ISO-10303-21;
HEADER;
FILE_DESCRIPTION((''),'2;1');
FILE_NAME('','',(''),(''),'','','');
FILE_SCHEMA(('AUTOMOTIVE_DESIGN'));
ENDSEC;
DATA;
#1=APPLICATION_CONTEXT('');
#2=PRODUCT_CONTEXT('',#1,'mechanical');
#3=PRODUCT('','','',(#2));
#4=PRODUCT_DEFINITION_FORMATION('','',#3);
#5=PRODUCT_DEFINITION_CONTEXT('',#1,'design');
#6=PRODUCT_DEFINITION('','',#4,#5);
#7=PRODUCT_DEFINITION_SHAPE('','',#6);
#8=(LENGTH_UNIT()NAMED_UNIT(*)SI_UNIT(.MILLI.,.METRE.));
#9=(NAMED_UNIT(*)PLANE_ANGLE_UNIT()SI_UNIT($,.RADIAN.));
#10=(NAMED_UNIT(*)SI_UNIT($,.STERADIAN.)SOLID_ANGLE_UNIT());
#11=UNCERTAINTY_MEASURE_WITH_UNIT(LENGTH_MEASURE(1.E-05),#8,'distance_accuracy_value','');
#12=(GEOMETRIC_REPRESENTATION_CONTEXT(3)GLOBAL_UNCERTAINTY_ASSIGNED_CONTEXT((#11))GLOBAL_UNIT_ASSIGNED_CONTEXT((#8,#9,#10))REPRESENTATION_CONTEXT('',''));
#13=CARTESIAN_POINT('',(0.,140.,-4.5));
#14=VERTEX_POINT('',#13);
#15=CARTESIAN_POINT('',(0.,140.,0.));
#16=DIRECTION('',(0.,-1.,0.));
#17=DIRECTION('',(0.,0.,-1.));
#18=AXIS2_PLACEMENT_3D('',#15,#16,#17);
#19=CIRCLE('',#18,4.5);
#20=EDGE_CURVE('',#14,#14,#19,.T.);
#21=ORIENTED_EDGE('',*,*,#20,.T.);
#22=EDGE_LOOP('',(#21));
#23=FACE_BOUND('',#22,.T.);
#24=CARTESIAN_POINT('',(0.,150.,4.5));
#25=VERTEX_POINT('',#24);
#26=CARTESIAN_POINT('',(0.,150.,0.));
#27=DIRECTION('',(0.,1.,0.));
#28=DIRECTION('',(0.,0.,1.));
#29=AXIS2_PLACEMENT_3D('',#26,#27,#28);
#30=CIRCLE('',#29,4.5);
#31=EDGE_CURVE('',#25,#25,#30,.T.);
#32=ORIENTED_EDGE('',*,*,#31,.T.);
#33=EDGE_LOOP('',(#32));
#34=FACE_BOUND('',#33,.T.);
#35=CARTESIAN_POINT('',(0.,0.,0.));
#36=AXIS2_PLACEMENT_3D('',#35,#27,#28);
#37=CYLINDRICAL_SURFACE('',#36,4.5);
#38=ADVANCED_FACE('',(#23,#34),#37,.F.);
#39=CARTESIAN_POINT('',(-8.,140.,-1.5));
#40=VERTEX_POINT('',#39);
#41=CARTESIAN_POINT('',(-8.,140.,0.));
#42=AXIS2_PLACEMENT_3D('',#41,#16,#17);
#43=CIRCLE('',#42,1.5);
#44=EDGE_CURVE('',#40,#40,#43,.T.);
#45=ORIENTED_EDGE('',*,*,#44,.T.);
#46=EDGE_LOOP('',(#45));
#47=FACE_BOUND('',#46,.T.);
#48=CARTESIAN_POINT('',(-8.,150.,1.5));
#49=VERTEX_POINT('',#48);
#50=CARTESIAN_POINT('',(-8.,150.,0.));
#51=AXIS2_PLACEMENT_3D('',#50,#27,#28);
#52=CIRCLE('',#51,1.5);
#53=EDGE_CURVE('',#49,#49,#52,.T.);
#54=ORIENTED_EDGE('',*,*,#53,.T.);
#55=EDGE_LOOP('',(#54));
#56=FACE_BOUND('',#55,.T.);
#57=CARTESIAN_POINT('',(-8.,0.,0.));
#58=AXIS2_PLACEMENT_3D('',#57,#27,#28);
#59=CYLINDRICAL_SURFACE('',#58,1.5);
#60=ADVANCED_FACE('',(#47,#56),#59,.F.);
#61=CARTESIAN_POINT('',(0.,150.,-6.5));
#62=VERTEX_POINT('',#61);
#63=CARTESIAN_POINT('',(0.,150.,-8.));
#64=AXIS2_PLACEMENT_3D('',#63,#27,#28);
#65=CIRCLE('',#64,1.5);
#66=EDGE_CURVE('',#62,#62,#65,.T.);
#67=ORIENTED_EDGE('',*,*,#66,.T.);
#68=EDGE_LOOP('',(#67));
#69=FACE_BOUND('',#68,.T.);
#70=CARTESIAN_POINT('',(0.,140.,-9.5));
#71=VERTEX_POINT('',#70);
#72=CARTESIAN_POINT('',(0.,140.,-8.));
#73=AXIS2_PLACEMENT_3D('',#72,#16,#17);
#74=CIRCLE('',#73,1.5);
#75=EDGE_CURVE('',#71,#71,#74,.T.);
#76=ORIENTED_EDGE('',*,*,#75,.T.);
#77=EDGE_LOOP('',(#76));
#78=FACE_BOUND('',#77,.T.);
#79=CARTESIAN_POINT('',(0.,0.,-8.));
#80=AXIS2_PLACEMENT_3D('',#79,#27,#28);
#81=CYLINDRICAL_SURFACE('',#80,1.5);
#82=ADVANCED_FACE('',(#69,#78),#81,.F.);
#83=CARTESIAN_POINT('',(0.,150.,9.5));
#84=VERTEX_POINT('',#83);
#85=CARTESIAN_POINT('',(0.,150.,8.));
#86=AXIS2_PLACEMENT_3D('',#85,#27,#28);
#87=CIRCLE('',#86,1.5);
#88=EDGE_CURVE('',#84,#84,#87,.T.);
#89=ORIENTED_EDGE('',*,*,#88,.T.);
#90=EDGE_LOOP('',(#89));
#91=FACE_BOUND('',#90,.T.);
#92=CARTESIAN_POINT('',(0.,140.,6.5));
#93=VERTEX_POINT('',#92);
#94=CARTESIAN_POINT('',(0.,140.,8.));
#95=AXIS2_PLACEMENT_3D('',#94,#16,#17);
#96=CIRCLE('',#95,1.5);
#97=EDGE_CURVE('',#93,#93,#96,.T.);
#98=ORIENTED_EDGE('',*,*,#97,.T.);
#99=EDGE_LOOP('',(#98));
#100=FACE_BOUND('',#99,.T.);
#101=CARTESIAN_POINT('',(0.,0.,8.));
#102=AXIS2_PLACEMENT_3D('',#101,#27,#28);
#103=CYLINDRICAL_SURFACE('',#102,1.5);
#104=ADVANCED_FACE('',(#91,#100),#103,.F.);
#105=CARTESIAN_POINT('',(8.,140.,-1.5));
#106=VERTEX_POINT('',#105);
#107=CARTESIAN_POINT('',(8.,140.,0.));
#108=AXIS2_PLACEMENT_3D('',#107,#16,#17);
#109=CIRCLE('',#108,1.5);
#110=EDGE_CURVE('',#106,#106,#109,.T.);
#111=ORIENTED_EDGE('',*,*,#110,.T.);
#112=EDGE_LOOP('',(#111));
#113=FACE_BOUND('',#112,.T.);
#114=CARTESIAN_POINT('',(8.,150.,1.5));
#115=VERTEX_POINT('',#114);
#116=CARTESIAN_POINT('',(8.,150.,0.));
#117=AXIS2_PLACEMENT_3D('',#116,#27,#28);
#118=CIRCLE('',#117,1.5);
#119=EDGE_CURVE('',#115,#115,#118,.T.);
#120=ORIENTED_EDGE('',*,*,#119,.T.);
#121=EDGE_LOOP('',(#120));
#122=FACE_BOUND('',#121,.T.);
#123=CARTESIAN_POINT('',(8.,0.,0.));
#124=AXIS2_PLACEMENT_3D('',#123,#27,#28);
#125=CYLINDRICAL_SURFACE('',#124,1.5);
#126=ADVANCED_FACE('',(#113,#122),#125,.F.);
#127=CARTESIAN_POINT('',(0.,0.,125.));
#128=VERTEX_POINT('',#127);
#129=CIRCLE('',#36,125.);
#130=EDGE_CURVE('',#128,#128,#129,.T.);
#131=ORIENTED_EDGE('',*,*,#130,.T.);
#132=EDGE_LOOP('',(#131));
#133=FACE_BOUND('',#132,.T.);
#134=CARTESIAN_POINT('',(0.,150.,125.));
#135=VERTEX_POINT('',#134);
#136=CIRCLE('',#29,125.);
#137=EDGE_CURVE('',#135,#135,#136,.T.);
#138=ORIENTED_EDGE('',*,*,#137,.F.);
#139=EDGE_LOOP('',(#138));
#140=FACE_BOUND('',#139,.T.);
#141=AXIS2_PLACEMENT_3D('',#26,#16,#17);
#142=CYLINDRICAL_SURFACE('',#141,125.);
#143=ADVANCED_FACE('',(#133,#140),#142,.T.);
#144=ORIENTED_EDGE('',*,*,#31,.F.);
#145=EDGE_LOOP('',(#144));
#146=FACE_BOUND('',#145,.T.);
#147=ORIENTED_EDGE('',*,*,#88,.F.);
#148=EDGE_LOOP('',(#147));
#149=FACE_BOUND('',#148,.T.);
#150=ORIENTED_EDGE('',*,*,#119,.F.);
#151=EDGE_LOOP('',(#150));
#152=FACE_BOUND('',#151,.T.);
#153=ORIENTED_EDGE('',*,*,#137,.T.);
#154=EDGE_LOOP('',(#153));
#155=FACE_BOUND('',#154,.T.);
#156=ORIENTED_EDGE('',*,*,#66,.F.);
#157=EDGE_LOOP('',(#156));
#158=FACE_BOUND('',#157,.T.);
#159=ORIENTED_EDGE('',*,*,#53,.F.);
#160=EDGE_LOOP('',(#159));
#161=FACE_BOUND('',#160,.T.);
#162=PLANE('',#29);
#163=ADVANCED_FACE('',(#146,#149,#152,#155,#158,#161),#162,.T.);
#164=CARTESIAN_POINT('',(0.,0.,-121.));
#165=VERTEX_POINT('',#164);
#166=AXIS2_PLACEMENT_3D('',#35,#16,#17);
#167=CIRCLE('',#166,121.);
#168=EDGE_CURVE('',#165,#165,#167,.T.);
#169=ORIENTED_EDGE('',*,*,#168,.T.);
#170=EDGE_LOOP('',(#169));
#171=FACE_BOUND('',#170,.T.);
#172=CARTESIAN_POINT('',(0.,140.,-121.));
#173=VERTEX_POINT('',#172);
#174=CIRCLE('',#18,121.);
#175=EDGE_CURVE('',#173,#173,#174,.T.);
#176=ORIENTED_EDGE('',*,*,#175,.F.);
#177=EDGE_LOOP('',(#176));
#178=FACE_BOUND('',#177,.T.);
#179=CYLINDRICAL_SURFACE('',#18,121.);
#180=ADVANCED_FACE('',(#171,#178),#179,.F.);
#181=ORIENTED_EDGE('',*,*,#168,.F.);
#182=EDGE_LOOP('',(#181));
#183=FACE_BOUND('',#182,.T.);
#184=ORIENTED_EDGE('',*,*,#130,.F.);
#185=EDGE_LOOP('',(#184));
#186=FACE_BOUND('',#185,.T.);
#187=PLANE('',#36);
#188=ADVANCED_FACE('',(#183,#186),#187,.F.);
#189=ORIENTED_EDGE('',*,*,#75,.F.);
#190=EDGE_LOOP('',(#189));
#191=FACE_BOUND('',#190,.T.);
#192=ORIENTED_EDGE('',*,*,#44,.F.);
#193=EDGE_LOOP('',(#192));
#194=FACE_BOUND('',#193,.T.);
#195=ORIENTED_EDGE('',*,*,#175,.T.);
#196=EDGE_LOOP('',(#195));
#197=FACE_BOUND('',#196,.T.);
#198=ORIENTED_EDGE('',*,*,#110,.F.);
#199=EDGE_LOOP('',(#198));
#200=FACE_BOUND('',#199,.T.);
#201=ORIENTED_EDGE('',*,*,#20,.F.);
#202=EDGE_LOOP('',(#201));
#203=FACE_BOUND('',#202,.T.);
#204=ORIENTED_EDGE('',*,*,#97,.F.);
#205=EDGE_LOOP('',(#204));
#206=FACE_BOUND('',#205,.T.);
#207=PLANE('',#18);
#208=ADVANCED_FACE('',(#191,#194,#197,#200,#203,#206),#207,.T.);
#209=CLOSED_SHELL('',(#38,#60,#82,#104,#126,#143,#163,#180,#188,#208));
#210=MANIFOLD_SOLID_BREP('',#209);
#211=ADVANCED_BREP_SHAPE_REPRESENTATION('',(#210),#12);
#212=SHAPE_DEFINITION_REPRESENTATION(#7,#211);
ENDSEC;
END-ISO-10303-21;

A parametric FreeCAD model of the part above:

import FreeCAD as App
import Part
import Sketcher

doc = App.newDocument("Part")
body = doc.addObject("PartDesign::Body", "Body")

# Sketch on XZ plane
sketch1 = body.newObject("Sketcher::SketchObject", "Sketch")
sketch1.AttachmentSupport = (doc.getObject("XZ_Plane"), [""])
sketch1.MapMode = "FlatFace"
sketch1.addGeometry(Part.Circle(App.Vector(0, 0, 0), App.Vector(0, 0, 1), 125), False)
sketch1.addConstraint([
    Sketcher.Constraint("Coincident", 0, 3, -1, 1),
    Sketcher.Constraint("Diameter", 0, 250.0),
])
pad1 = body.newObject("PartDesign::Pad", "Pad")
pad1.Profile = sketch1
pad1.Length = 150
pad1.Reversed = True

# Sketch on XZ plane
sketch2 = body.newObject("Sketcher::SketchObject", "Sketch001")
sketch2.AttachmentSupport = (doc.getObject("XZ_Plane"), [""])
sketch2.MapMode = "FlatFace"
sketch2.addGeometry(Part.Circle(App.Vector(0, 0, 0), App.Vector(0, 0, 1), 121), False)
sketch2.addConstraint([
    Sketcher.Constraint("Coincident", 0, 3, -1, 1),
    Sketcher.Constraint("Diameter", 0, 242.0),
])
pocket1 = body.newObject("PartDesign::Pocket", "Pocket")
pocket1.Profile = sketch2
pocket1.Length = 140

# Sketch on XZ plane
sketch3 = body.newObject("Sketcher::SketchObject", "Sketch002")
sketch3.AttachmentSupport = (doc.getObject("XZ_Plane"), [""])
sketch3.MapMode = "FlatFace"
sketch3.AttachmentOffset = App.Placement(App.Vector(0, 0, -150), App.Rotation())
sketch3.addGeometry([
    Part.Circle(App.Vector(-8, 0, 0), App.Vector(0, 0, 1), 1.5),  # 0
    Part.Circle(App.Vector(0, 0, 0), App.Vector(0, 0, 1), 4.5),  # 1
    Part.Circle(App.Vector(0, -8, 0), App.Vector(0, 0, 1), 1.5),  # 2
    Part.Circle(App.Vector(8, 0, 0), App.Vector(0, 0, 1), 1.5),  # 3
    Part.Circle(App.Vector(0, 8, 0), App.Vector(0, 0, 1), 1.5),  # 4
], False)
sketch3.addConstraint([
    Sketcher.Constraint("Coincident", 1, 3, -1, 1),
    Sketcher.Constraint("Equal", 0, 2),
    Sketcher.Constraint("Equal", 2, 3),
    Sketcher.Constraint("Equal", 3, 4),
    Sketcher.Constraint("Symmetric", 0, 3, 3, 3, -1, 1),
    Sketcher.Constraint("Symmetric", 2, 3, 4, 3, -1, 1),
    Sketcher.Constraint("PointOnObject", 0, 3, -1),
    Sketcher.Constraint("PointOnObject", 2, 3, -2),
    Sketcher.Constraint("Diameter", 0, 3.0),
    Sketcher.Constraint("Diameter", 1, 9.0),
    Sketcher.Constraint("DistanceX", 0, 3, -1, 1, 8.0),
    Sketcher.Constraint("DistanceY", 2, 3, -1, 1, 8.0),
])
pocket2 = body.newObject("PartDesign::Pocket", "Pocket001")
pocket2.Profile = sketch3
pocket2.Type = "ThroughAll"
pocket2.Reversed = True

doc.recompute()
